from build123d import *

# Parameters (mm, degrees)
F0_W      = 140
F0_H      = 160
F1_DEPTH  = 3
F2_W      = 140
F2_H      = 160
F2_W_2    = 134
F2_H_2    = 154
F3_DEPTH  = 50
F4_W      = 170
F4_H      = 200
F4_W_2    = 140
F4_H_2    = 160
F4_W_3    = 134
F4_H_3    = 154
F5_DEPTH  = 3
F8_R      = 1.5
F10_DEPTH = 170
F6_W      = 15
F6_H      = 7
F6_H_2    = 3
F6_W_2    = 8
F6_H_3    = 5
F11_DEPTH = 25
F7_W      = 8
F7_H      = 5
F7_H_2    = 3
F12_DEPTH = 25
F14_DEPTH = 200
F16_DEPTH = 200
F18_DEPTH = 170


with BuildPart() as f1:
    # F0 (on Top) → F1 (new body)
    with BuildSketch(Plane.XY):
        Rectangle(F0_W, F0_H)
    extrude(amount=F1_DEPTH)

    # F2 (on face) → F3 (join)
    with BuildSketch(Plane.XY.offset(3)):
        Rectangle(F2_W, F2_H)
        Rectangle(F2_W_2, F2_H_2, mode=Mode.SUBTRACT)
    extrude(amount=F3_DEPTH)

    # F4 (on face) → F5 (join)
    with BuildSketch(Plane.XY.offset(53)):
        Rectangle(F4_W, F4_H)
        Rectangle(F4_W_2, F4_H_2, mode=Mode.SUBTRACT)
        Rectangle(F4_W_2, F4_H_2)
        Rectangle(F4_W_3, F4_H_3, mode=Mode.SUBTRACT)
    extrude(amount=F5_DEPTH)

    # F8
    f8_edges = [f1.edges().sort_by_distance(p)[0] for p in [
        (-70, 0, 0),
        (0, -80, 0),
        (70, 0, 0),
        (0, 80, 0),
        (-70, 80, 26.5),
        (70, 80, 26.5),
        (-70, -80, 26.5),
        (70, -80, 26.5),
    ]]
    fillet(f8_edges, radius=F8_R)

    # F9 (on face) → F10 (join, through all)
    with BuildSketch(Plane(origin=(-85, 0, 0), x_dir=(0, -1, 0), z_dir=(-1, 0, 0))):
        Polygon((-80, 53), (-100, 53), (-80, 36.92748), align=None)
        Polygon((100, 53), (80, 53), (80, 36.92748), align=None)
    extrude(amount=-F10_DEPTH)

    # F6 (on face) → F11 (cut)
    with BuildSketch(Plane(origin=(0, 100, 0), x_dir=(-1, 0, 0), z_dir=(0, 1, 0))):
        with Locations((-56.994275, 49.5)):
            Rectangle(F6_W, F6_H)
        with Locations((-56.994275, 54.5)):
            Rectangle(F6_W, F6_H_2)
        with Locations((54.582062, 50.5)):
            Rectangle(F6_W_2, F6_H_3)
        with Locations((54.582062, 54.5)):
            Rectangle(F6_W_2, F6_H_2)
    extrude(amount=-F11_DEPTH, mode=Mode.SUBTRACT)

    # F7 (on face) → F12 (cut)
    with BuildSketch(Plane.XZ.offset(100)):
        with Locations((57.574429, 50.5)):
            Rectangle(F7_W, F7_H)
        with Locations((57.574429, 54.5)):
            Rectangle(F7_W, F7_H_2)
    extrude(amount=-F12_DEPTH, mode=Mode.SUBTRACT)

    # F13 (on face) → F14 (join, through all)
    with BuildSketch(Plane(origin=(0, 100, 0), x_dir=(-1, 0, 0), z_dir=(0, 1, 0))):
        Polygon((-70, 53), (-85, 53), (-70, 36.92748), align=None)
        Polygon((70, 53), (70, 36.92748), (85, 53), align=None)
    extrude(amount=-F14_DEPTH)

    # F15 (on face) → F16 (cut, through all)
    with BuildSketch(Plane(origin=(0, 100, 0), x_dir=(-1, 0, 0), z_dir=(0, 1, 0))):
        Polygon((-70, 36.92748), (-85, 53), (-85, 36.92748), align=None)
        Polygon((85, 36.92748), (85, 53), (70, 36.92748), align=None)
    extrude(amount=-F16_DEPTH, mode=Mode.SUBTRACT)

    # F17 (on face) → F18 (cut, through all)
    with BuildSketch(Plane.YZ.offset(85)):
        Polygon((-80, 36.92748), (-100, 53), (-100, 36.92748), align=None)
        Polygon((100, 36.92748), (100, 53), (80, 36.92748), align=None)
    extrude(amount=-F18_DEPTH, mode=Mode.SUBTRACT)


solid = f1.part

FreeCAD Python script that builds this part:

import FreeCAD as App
import Part
import Sketcher
from FreeCAD import Vector
Q = App.Units.Quantity


def edges_at(feature, points):
    """Names of the edges that pass closest to the given points."""
    edges = feature.Shape.Edges
    near = lambda p: min(range(len(edges)), key=lambda i: edges[i].distToShape(Part.Vertex(*p))[0])
    return sorted({f"Edge{near(p) + 1}" for p in points})


def add_polygon(sketch, points):
    """Adds a closed chain of lines whose ends are joined by coincident constraints."""
    first, n = sketch.GeometryCount, len(points)
    for a, b in zip(points, points[1:] + points[:1]):
        sketch.addGeometry(Part.LineSegment(App.Vector(*a, 0), App.Vector(*b, 0)), False)
    for i in range(n):
        sketch.addConstraint(Sketcher.Constraint("Coincident", first + i, 2, first + (i + 1) % n, 1))

doc = App.newDocument("Part")
body = doc.addObject("PartDesign::Body", "Body")

# Sketch on XY plane
sketch1 = body.newObject("Sketcher::SketchObject", "Sketch")
sketch1.AttachmentSupport = (doc.getObject("XY_Plane"), [""])
sketch1.MapMode = "FlatFace"
add_polygon(sketch1, [(-70, 80), (-70, -80), (70, -80), (70, 80)])  # lines 0-3
sketch1.addConstraint([
    Sketcher.Constraint("Vertical", 0),
    Sketcher.Constraint("Horizontal", 1),
    Sketcher.Constraint("Vertical", 2),
    Sketcher.Constraint("Horizontal", 3),
    Sketcher.Constraint("Symmetric", 0, 2, 2, 2, -1, 1),
    Sketcher.Constraint("DistanceX", 1, 1, 1, 2, Q("140 mm")),
    Sketcher.Constraint("DistanceY", 0, 2, 0, 1, Q("160 mm")),
])
pad1 = body.newObject("PartDesign::Pad", "Pad")
pad1.Profile = sketch1
pad1.Length = 3

# Sketch on XY plane
sketch2 = body.newObject("Sketcher::SketchObject", "Sketch001")
sketch2.AttachmentSupport = (doc.getObject("XY_Plane"), [""])
sketch2.MapMode = "FlatFace"
sketch2.AttachmentOffset = App.Placement(Vector(0, 0, 3), App.Rotation())
add_polygon(sketch2, [(-70, 80), (-70, -80), (70, -80), (70, 80)])  # lines 0-3
add_polygon(sketch2, [(67, -77), (-67, -77), (-67, 77), (67, 77)])  # lines 4-7
sketch2.addConstraint([
    Sketcher.Constraint("Vertical", 0),
    Sketcher.Constraint("Horizontal", 1),
    Sketcher.Constraint("Vertical", 2),
    Sketcher.Constraint("Horizontal", 3),
    Sketcher.Constraint("Horizontal", 4),
    Sketcher.Constraint("Vertical", 5),
    Sketcher.Constraint("Horizontal", 6),
    Sketcher.Constraint("Vertical", 7),
    Sketcher.Constraint("Symmetric", 0, 2, 2, 2, -1, 1),
    Sketcher.Constraint("Symmetric", 4, 2, 6, 2, -1, 1),
    Sketcher.Constraint("DistanceX", 1, 1, 1, 2, Q("140 mm")),
    Sketcher.Constraint("DistanceX", 4, 2, 4, 1, Q("134 mm")),
    Sketcher.Constraint("DistanceY", 0, 2, 0, 1, Q("160 mm")),
    Sketcher.Constraint("DistanceY", 5, 1, 5, 2, Q("154 mm")),
])
pad2 = body.newObject("PartDesign::Pad", "Pad001")
pad2.Profile = sketch2
pad2.Length = 50

# Sketch on XY plane
sketch3 = body.newObject("Sketcher::SketchObject", "Sketch002")
sketch3.AttachmentSupport = (doc.getObject("XY_Plane"), [""])
sketch3.MapMode = "FlatFace"
sketch3.AttachmentOffset = App.Placement(Vector(0, 0, 53), App.Rotation())
add_polygon(sketch3, [(-85, 100), (-85, -100), (85, -100), (85, 100)])  # lines 0-3
add_polygon(sketch3, [(67, -77), (-67, -77), (-67, 77), (67, 77)])  # lines 4-7
sketch3.addConstraint([
    Sketcher.Constraint("Vertical", 0),
    Sketcher.Constraint("Horizontal", 1),
    Sketcher.Constraint("Vertical", 2),
    Sketcher.Constraint("Horizontal", 3),
    Sketcher.Constraint("Horizontal", 4),
    Sketcher.Constraint("Vertical", 5),
    Sketcher.Constraint("Horizontal", 6),
    Sketcher.Constraint("Vertical", 7),
    Sketcher.Constraint("Symmetric", 0, 2, 2, 2, -1, 1),
    Sketcher.Constraint("Symmetric", 4, 2, 6, 2, -1, 1),
    Sketcher.Constraint("DistanceX", 1, 1, 1, 2, Q("170 mm")),
    Sketcher.Constraint("DistanceX", 4, 2, 4, 1, Q("134 mm")),
    Sketcher.Constraint("DistanceY", 0, 2, 0, 1, Q("200 mm")),
    Sketcher.Constraint("DistanceY", 5, 1, 5, 2, Q("154 mm")),
])
pad3 = body.newObject("PartDesign::Pad", "Pad002")
pad3.Profile = sketch3
pad3.Length = 3
doc.recompute()

fillet = body.newObject("PartDesign::Fillet", "Fillet")
fillet.Base = (pad3, edges_at(pad3, [
    (-70, 0, 0),
    (0, -80, 0),
    (70, 0, 0),
    (0, 80, 0),
    (-70, 80, 26.5),
    (70, 80, 26.5),
    (-70, -80, 26.5),
    (70, -80, 26.5),
]))
fillet.Radius = 1.5

# Sketch on YZ plane
sketch4 = body.newObject("Sketcher::SketchObject", "Sketch003")
sketch4.AttachmentSupport = (doc.getObject("YZ_Plane"), [""])
sketch4.MapMode = "FlatFace"
sketch4.AttachmentOffset = App.Placement(Vector(0, 0, -85), App.Rotation())
add_polygon(sketch4, [(80, 53), (100, 53), (80, 37)])  # lines 0-2
add_polygon(sketch4, [(-100, 53), (-80, 53), (-80, 37)])  # lines 3-5
sketch4.addConstraint([
    Sketcher.Constraint("Horizontal", 0),
    Sketcher.Constraint("Vertical", 2),
    Sketcher.Constraint("Horizontal", 3),
    Sketcher.Constraint("Vertical", 4),
    Sketcher.Constraint("Symmetric", 2, 2, 3, 2, -2),
    Sketcher.Constraint("Horizontal", 1, 2, 4, 2),
    Sketcher.Constraint("Equal", 0, 3),
    Sketcher.Constraint("DistanceX", 0, 1, 0, 2, Q("20 mm")),
    Sketcher.Constraint("DistanceX", -1, 1, 0, 2, Q("100 mm")),
    Sketcher.Constraint("DistanceY", -1, 1, 0, 2, Q("53 mm")),
    Sketcher.Constraint("DistanceY", 2, 1, 2, 2, Q("16.07252 mm")),
])
pad4 = body.newObject("PartDesign::Pad", "Pad003")
pad4.Profile = sketch4
pad4.Length = 170

# Sketch on XZ plane
sketch5 = body.newObject("Sketcher::SketchObject", "Sketch004")
sketch5.AttachmentSupport = (doc.getObject("XZ_Plane"), [""])
sketch5.MapMode = "FlatFace"
sketch5.AttachmentOffset = App.Placement(Vector(0, 0, -100), App.Rotation())
add_polygon(sketch5, [(64, 46), (49, 46), (49, 56), (64, 56)])  # lines 0-3
add_polygon(sketch5, [(-51, 48), (-59, 48), (-59, 56), (-51, 56)])  # lines 4-7
sketch5.addConstraint([
    Sketcher.Constraint("Horizontal", 0),
    Sketcher.Constraint("Vertical", 1),
    Sketcher.Constraint("Horizontal", 2),
    Sketcher.Constraint("Vertical", 3),
    Sketcher.Constraint("Horizontal", 4),
    Sketcher.Constraint("Vertical", 5),
    Sketcher.Constraint("Horizontal", 6),
    Sketcher.Constraint("Vertical", 7),
    Sketcher.Constraint("Horizontal", 2, 2, 5, 2),
    Sketcher.Constraint("Equal", 6, 5),
    Sketcher.Constraint("DistanceX", 0, 2, 0, 1, Q("15 mm")),
    Sketcher.Constraint("DistanceX", 4, 2, 4, 1, Q("8 mm")),
    Sketcher.Constraint("DistanceY", 1, 1, 1, 2, Q("10 mm")),
    Sketcher.Constraint("DistanceY", -1, 1, 0, 2, Q("46 mm")),
    Sketcher.Constraint("DistanceX", -1, 1, 0, 2, Q("49.494275 mm")),
    Sketcher.Constraint("DistanceX", 4, 2, -1, 1, Q("58.582062 mm")),
])
pocket1 = body.newObject("PartDesign::Pocket", "Pocket")
pocket1.Profile = sketch5
pocket1.Length = 25
pocket1.Reversed = True

# Sketch on XZ plane
sketch6 = body.newObject("Sketcher::SketchObject", "Sketch005")
sketch6.AttachmentSupport = (doc.getObject("XZ_Plane"), [""])
sketch6.MapMode = "FlatFace"
sketch6.AttachmentOffset = App.Placement(Vector(0, 0, 100), App.Rotation())
add_polygon(sketch6, [(54, 48), (62, 48), (62, 56), (54, 56)])  # lines 0-3
sketch6.addConstraint([
    Sketcher.Constraint("Horizontal", 0),
    Sketcher.Constraint("Vertical", 1),
    Sketcher.Constraint("Horizontal", 2),
    Sketcher.Constraint("Vertical", 3),
    Sketcher.Constraint("Equal", 2, 1),
    Sketcher.Constraint("DistanceX", 0, 1, 0, 2, Q("8 mm")),
    Sketcher.Constraint("DistanceY", -1, 1, 0, 2, Q("48 mm")),
    Sketcher.Constraint("DistanceX", -1, 1, 0, 2, Q("61.574429 mm")),
])
pocket2 = body.newObject("PartDesign::Pocket", "Pocket001")
pocket2.Profile = sketch6
pocket2.Length = 25

# Sketch on XZ plane
sketch7 = body.newObject("Sketcher::SketchObject", "Sketch006")
sketch7.AttachmentSupport = (doc.getObject("XZ_Plane"), [""])
sketch7.MapMode = "FlatFace"
sketch7.AttachmentOffset = App.Placement(Vector(0, 0, -100), App.Rotation())
add_polygon(sketch7, [(70, 53), (85, 53), (70, 37)])  # lines 0-2
add_polygon(sketch7, [(-70, 53), (-70, 37), (-85, 53)])  # lines 3-5
sketch7.addConstraint([
    Sketcher.Constraint("Horizontal", 0),
    Sketcher.Constraint("Vertical", 2),
    Sketcher.Constraint("Vertical", 3),
    Sketcher.Constraint("Horizontal", 5),
    Sketcher.Constraint("Symmetric", 1, 2, 3, 2, -2),
    Sketcher.Constraint("Symmetric", 0, 2, 4, 2, -2),
    Sketcher.Constraint("DistanceX", 0, 1, 0, 2, Q("15 mm")),
    Sketcher.Constraint("DistanceX", -1, 1, 0, 2, Q("85 mm")),
    Sketcher.Constraint("DistanceY", -1, 1, 0, 2, Q("53 mm")),
    Sketcher.Constraint("DistanceY", 2, 1, 2, 2, Q("16.07252 mm")),
])
pad5 = body.newObject("PartDesign::Pad", "Pad004")
pad5.Profile = sketch7
pad5.Length = 200

# Sketch on XZ plane
sketch8 = body.newObject("Sketcher::SketchObject", "Sketch007")
sketch8.AttachmentSupport = (doc.getObject("XZ_Plane"), [""])
sketch8.MapMode = "FlatFace"
sketch8.AttachmentOffset = App.Placement(Vector(0, 0, -100), App.Rotation())
add_polygon(sketch8, [(70, 37), (85, 53), (85, 37)])  # lines 0-2
add_polygon(sketch8, [(-85, 37), (-85, 53), (-70, 37)])  # lines 3-5
sketch8.addConstraint([
    Sketcher.Constraint("Vertical", 1),
    Sketcher.Constraint("Horizontal", 2),
    Sketcher.Constraint("Vertical", 3),
    Sketcher.Constraint("Horizontal", 5),
    Sketcher.Constraint("Symmetric", 0, 2, 3, 2, -2),
    Sketcher.Constraint("Symmetric", 2, 2, 4, 2, -2),
    Sketcher.Constraint("DistanceX", 2, 2, 2, 1, Q("15 mm")),
    Sketcher.Constraint("DistanceX", -1, 1, 0, 2, Q("85 mm")),
    Sketcher.Constraint("DistanceY", -1, 1, 0, 2, Q("53 mm")),
    Sketcher.Constraint("DistanceY", 1, 2, 1, 1, Q("16.07252 mm")),
])
pocket3 = body.newObject("PartDesign::Pocket", "Pocket002")
pocket3.Profile = sketch8
pocket3.Type = "ThroughAll"
pocket3.Reversed = True

# Sketch on YZ plane
sketch9 = body.newObject("Sketcher::SketchObject", "Sketch008")
sketch9.AttachmentSupport = (doc.getObject("YZ_Plane"), [""])
sketch9.MapMode = "FlatFace"
sketch9.AttachmentOffset = App.Placement(Vector(0, 0, 85), App.Rotation())
add_polygon(sketch9, [(-80, 37), (-100, 53), (-100, 37)])  # lines 0-2
add_polygon(sketch9, [(100, 37), (100, 53), (80, 37)])  # lines 3-5
sketch9.addConstraint([
    Sketcher.Constraint("Vertical", 1),
    Sketcher.Constraint("Horizontal", 2),
    Sketcher.Constraint("Vertical", 3),
    Sketcher.Constraint("Horizontal", 5),
    Sketcher.Constraint("Symmetric", 0, 2, 3, 2, -2),
    Sketcher.Constraint("Symmetric", 2, 2, 4, 2, -2),
    Sketcher.Constraint("DistanceX", 2, 1, 2, 2, Q("20 mm")),
    Sketcher.Constraint("DistanceX", 0, 2, -1, 1, Q("100 mm")),
    Sketcher.Constraint("DistanceY", -1, 1, 0, 2, Q("53 mm")),
    Sketcher.Constraint("DistanceY", 1, 2, 1, 1, Q("16.07252 mm")),
])
pocket4 = body.newObject("PartDesign::Pocket", "Pocket003")
pocket4.Profile = sketch9
pocket4.Type = "ThroughAll"

doc.recompute()
